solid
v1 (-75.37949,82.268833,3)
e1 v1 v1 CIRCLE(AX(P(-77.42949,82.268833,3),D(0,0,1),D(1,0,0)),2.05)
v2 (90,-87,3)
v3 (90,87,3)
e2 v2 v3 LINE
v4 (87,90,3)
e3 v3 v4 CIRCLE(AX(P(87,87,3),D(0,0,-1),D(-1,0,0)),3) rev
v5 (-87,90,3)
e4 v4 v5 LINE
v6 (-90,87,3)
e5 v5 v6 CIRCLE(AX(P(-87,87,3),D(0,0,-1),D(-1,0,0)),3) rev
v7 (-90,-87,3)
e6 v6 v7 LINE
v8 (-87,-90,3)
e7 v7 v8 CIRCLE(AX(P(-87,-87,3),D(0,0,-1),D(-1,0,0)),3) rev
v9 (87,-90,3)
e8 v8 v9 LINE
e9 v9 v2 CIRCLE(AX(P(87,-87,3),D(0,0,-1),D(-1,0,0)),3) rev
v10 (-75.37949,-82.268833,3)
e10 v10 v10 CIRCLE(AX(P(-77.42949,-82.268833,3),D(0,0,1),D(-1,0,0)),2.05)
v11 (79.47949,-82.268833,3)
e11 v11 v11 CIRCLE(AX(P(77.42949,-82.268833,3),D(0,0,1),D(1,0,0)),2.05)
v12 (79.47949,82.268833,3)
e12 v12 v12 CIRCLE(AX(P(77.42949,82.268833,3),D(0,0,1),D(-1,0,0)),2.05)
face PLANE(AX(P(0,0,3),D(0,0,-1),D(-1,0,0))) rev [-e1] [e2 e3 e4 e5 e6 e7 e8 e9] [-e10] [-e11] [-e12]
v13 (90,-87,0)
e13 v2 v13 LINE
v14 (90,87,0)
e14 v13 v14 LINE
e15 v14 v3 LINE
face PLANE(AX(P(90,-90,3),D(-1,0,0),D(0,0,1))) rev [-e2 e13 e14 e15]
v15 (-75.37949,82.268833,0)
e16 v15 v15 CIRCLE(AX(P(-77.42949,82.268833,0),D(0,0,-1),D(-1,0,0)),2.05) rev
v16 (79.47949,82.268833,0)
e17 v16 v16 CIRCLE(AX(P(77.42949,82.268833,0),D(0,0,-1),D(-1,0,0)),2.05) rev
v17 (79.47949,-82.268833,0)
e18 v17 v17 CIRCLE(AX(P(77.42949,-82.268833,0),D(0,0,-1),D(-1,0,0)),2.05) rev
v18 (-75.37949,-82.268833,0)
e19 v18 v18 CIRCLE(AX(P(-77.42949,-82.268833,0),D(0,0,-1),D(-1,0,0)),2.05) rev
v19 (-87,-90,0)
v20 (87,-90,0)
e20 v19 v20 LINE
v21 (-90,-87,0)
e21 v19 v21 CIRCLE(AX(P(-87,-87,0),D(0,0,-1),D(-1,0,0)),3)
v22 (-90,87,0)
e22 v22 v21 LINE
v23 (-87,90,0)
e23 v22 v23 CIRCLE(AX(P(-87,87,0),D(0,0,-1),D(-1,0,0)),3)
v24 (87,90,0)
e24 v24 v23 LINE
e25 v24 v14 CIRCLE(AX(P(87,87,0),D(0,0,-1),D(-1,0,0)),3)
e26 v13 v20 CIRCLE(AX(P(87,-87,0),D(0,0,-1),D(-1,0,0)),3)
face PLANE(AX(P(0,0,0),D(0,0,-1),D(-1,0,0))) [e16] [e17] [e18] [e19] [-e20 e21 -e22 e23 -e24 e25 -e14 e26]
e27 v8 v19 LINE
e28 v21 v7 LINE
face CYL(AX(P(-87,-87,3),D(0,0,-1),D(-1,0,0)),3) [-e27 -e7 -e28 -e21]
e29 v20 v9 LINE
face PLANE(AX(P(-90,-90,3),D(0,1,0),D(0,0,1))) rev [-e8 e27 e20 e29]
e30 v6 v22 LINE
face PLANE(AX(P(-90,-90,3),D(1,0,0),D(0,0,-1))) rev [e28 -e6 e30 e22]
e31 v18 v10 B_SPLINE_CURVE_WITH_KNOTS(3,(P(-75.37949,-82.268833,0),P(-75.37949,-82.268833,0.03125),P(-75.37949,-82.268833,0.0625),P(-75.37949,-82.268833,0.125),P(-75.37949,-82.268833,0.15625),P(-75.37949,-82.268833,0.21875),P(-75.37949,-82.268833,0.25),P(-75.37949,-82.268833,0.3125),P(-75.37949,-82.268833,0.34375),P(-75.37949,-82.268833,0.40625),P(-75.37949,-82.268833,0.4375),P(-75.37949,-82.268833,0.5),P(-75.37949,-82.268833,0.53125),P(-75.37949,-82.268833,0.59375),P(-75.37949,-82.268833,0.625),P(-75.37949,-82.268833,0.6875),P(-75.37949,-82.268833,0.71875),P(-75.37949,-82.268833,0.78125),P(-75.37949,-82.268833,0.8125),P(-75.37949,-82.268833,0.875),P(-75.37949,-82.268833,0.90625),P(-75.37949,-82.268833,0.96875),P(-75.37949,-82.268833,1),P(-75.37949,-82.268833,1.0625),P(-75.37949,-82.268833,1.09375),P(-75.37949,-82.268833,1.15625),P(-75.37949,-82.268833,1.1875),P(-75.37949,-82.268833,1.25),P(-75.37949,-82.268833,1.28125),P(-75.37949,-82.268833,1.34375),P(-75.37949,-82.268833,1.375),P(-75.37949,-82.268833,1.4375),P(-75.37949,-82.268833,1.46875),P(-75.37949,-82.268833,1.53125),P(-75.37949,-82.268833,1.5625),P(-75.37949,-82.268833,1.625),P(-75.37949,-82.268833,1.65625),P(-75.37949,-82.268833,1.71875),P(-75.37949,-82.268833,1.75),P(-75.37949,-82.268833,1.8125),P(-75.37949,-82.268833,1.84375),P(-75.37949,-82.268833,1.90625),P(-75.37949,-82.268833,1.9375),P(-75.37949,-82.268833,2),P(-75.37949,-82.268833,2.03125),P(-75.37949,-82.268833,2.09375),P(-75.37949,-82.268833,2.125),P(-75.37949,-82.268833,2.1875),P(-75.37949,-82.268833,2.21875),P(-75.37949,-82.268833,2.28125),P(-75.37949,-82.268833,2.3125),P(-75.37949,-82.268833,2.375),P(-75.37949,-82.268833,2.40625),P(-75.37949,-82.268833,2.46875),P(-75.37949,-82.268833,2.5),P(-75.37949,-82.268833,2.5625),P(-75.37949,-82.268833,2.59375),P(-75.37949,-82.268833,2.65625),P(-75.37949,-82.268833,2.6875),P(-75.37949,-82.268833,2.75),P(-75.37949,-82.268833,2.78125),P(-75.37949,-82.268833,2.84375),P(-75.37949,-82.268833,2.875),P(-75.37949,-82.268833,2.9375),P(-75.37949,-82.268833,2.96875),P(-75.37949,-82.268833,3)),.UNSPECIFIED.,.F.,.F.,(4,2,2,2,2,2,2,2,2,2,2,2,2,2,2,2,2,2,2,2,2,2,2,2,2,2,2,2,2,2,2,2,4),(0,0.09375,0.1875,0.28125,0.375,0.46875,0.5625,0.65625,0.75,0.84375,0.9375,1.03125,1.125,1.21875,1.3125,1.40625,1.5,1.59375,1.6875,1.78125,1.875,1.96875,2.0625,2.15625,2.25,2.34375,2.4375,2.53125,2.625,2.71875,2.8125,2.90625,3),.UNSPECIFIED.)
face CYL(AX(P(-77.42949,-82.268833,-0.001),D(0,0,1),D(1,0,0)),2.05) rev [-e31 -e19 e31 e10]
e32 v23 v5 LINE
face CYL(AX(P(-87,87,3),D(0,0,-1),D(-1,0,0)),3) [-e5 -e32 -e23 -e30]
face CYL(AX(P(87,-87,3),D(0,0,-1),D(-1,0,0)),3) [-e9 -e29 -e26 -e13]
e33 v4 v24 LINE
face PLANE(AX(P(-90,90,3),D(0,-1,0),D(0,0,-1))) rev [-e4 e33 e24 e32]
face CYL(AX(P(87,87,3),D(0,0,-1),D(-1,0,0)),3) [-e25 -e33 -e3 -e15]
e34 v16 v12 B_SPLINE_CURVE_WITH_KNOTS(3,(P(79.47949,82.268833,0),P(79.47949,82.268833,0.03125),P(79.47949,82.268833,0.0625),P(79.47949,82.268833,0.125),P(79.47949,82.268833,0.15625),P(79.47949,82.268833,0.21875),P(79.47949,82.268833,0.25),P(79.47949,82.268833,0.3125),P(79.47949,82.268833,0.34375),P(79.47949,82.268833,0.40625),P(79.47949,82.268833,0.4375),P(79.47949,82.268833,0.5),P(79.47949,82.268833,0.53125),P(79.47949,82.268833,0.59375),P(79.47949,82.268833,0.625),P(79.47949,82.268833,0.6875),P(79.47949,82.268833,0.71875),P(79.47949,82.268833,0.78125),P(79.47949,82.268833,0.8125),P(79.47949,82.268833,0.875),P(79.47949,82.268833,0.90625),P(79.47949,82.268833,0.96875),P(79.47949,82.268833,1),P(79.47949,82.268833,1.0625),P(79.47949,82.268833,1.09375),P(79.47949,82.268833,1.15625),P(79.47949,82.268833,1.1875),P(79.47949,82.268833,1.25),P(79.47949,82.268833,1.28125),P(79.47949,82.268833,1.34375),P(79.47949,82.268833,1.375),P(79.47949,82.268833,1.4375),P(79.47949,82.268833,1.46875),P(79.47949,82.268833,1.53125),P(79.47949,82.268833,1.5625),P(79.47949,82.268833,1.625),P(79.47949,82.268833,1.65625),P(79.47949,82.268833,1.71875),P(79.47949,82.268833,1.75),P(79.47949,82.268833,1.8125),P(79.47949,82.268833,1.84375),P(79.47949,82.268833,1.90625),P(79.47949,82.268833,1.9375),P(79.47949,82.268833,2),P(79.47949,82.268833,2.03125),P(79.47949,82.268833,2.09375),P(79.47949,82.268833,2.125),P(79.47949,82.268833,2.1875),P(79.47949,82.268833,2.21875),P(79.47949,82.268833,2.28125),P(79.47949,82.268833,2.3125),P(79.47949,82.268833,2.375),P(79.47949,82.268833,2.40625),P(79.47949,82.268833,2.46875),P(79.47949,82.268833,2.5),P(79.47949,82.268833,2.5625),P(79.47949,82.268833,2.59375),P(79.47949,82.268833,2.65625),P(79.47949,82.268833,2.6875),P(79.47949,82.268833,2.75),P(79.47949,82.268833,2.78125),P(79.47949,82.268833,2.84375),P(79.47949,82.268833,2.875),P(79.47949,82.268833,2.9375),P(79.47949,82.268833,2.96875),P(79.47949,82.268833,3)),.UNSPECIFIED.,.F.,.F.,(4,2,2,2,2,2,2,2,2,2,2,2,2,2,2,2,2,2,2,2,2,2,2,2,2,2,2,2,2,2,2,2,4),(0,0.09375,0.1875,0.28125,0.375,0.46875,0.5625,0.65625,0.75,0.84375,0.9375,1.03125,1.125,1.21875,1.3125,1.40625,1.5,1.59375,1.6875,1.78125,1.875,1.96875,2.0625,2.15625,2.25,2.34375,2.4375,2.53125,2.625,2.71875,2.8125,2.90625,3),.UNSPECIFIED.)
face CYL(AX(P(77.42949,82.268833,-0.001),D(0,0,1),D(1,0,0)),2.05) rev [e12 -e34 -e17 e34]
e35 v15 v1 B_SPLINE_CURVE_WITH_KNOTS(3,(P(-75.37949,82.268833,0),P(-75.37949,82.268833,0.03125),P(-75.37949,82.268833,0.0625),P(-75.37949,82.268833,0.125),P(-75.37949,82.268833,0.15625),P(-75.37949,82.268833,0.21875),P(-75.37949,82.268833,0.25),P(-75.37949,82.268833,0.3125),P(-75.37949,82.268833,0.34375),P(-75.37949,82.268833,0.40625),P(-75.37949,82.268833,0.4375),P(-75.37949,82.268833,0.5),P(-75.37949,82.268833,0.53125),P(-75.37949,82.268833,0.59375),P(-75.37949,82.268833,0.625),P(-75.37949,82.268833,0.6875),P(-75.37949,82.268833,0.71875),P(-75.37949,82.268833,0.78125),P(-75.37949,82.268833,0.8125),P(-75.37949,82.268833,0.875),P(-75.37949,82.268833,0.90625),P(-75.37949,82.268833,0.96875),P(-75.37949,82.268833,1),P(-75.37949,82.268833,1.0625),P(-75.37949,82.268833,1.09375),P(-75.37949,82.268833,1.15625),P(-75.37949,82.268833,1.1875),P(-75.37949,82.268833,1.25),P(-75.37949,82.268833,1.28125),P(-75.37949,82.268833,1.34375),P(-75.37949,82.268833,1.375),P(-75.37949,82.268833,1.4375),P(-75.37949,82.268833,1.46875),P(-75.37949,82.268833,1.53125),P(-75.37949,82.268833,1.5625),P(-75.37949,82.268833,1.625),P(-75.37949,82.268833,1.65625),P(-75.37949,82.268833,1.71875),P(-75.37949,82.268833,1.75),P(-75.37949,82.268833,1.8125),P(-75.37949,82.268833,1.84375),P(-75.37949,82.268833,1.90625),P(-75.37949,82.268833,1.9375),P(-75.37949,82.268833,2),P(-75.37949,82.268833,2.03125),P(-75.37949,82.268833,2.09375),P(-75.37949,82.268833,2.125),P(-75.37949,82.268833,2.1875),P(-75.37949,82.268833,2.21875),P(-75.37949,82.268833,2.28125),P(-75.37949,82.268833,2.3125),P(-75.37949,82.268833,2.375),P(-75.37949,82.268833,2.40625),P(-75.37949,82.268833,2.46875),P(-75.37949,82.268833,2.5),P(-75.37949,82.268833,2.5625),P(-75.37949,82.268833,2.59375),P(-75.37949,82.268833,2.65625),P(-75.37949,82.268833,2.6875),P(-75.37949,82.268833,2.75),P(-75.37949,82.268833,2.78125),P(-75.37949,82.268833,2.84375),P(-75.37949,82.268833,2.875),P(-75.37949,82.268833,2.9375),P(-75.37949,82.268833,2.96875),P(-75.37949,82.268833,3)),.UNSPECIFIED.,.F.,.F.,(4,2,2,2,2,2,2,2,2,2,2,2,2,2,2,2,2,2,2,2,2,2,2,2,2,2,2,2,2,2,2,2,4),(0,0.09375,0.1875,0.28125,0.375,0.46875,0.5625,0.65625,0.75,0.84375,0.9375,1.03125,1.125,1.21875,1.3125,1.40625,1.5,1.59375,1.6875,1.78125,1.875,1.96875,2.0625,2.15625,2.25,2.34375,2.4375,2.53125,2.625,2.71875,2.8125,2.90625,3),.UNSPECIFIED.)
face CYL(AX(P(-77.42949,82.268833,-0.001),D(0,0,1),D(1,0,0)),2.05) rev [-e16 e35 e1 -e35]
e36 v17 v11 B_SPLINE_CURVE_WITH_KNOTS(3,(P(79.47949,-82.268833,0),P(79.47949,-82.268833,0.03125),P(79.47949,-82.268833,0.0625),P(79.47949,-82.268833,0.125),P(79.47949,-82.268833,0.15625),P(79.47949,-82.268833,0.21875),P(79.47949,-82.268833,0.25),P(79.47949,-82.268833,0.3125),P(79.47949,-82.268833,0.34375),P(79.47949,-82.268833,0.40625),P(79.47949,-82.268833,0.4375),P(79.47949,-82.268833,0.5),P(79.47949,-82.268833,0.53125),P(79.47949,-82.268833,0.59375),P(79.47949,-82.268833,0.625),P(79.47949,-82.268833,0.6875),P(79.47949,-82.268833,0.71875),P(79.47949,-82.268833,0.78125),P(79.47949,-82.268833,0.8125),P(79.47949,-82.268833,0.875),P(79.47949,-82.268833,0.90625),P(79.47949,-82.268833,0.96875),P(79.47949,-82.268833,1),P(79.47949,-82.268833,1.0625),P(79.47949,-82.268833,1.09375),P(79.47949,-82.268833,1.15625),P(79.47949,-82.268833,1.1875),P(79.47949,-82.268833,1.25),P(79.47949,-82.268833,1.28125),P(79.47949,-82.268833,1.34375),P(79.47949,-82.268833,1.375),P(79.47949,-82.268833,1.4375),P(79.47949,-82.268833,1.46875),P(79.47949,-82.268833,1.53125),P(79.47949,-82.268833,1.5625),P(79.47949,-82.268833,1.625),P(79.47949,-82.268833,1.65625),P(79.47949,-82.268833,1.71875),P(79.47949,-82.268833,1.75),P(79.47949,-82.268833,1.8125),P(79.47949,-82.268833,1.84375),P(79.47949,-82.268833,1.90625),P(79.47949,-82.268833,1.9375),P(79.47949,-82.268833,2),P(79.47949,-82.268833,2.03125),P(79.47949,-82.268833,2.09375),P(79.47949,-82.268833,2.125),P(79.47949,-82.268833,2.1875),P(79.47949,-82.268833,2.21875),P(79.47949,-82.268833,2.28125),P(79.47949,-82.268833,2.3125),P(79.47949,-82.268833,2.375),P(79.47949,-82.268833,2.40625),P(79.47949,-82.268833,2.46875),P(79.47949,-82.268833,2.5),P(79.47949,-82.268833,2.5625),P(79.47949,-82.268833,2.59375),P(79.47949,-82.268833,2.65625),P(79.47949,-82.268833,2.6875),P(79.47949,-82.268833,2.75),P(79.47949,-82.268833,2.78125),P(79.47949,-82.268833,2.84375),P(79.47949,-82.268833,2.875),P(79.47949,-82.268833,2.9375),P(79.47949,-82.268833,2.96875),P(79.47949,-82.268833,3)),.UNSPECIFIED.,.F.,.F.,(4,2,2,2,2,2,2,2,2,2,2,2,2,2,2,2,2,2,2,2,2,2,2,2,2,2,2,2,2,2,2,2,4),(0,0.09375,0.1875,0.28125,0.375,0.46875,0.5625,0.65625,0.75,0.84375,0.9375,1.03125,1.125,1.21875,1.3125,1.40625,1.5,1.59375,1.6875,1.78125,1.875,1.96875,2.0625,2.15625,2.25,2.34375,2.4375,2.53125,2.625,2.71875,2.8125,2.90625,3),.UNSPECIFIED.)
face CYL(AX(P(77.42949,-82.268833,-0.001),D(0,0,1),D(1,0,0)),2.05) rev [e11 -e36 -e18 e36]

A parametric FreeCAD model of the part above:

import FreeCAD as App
import Part
import Sketcher

V = App.Vector


def edges_at(feature, points):
    """Names of the edges that pass closest to the given points."""
    edges = feature.Shape.Edges
    near = lambda p: min(range(len(edges)), key=lambda i: edges[i].distToShape(Part.Vertex(*p))[0])
    return sorted({f"Edge{near(p) + 1}" for p in points})


def add_polygon(sketch, points):
    """Adds a closed chain of lines whose ends are joined by coincident constraints."""
    first, n = sketch.GeometryCount, len(points)
    for a, b in zip(points, points[1:] + points[:1]):
        sketch.addGeometry(Part.LineSegment(App.Vector(*a, 0), App.Vector(*b, 0)), False)
    for i in range(n):
        sketch.addConstraint(Sketcher.Constraint("Coincident", first + i, 2, first + (i + 1) % n, 1))

doc = App.newDocument("Part")
body = doc.addObject("PartDesign::Body", "Body")

sketch1 = body.newObject("Sketcher::SketchObject", "Sketch")
sketch1.AttachmentSupport = (doc.getObject("XY_Plane"), [""])
sketch1.MapMode = "FlatFace"
add_polygon(sketch1, [(-90, 90), (-90, -90), (90, -90), (90, 90)])
sketch1.addConstraint([
    Sketcher.Constraint("Vertical", 0),
    Sketcher.Constraint("Horizontal", 1),
    Sketcher.Constraint("Vertical", 2),
    Sketcher.Constraint("Horizontal", 3),
    Sketcher.Constraint("Symmetric", 0, 2, 2, 2, -1, 1),
    Sketcher.Constraint("Equal", 3, 0),
    Sketcher.Constraint("DistanceX", 1, 1, 1, 2, 180.0),
])
pad1 = body.newObject("PartDesign::Pad", "Pad")
pad1.Profile = sketch1
pad1.Length = 3
doc.recompute()

fillet = body.newObject("PartDesign::Fillet", "Fillet")
fillet.Base = (pad1, edges_at(pad1, [
    (90, -90, 1.5),
    (-90, -90, 1.5),
    (-90, 90, 1.5),
    (90, 90, 1.5),
]))
fillet.Radius = 3

sketch2 = body.newObject("Sketcher::SketchObject", "Sketch001")
sketch2.AttachmentSupport = (doc.getObject("XY_Plane"), [""])
sketch2.MapMode = "FlatFace"
sketch2.AttachmentOffset = App.Placement(V(0, 0, 3), App.Rotation())
sketch2.addGeometry(Part.Circle(V(-77.4, 82.3, 0), V(0, 0, 1), 2), False)
sketch2.addConstraint([
    Sketcher.Constraint("Diameter", 0, 4.1),
    Sketcher.Constraint("DistanceX", 0, 3, -1, 1, 77.42949),
    Sketcher.Constraint("DistanceY", -1, 1, 0, 3, 82.268833),
])
pocket1 = body.newObject("PartDesign::Pocket", "Pocket")
pocket1.Profile = sketch2
pocket1.Type = "UpToFirst"

sketch3 = body.newObject("Sketcher::SketchObject", "Sketch002")
sketch3.AttachmentSupport = (doc.getObject("XY_Plane"), [""])
sketch3.MapMode = "FlatFace"
sketch3.AttachmentOffset = App.Placement(V(0, 0, 3), App.Rotation())
sketch3.addGeometry(Part.Circle(V(77.4, 82.3, 0), V(0, 0, 1), 2), False)
sketch3.addConstraint([
    Sketcher.Constraint("Diameter", 0, 4.1),
    Sketcher.Constraint("DistanceX", -1, 1, 0, 3, 77.42949),
    Sketcher.Constraint("DistanceY", -1, 1, 0, 3, 82.268833),
])
pocket2 = body.newObject("PartDesign::Pocket", "Pocket001")
pocket2.Profile = sketch3
pocket2.Type = "UpToFirst"

sketch4 = body.newObject("Sketcher::SketchObject", "Sketch003")
sketch4.AttachmentSupport = (doc.getObject("XY_Plane"), [""])
sketch4.MapMode = "FlatFace"
sketch4.AttachmentOffset = App.Placement(V(0, 0, 3), App.Rotation())
sketch4.addGeometry(Part.Circle(V(77.4, -82.3, 0), V(0, 0, 1), 2), False)
sketch4.addConstraint([
    Sketcher.Constraint("Diameter", 0, 4.1),
    Sketcher.Constraint("DistanceX", -1, 1, 0, 3, 77.42949),
    Sketcher.Constraint("DistanceY", 0, 3, -1, 1, 82.268833),
])
pocket3 = body.newObject("PartDesign::Pocket", "Pocket002")
pocket3.Profile = sketch4
pocket3.Type = "UpToFirst"

sketch5 = body.newObject("Sketcher::SketchObject", "Sketch004")
sketch5.AttachmentSupport = (doc.getObject("XY_Plane"), [""])
sketch5.MapMode = "FlatFace"
sketch5.AttachmentOffset = App.Placement(V(0, 0, 3), App.Rotation())
sketch5.addGeometry(Part.Circle(V(-77.4, -82.3, 0), V(0, 0, 1), 2), False)
sketch5.addConstraint([
    Sketcher.Constraint("Diameter", 0, 4.1),
    Sketcher.Constraint("DistanceX", 0, 3, -1, 1, 77.42949),
    Sketcher.Constraint("DistanceY", 0, 3, -1, 1, 82.268833),
])
pocket4 = body.newObject("PartDesign::Pocket", "Pocket003")
pocket4.Profile = sketch5
pocket4.Type = "UpToFirst"

doc.recompute()
